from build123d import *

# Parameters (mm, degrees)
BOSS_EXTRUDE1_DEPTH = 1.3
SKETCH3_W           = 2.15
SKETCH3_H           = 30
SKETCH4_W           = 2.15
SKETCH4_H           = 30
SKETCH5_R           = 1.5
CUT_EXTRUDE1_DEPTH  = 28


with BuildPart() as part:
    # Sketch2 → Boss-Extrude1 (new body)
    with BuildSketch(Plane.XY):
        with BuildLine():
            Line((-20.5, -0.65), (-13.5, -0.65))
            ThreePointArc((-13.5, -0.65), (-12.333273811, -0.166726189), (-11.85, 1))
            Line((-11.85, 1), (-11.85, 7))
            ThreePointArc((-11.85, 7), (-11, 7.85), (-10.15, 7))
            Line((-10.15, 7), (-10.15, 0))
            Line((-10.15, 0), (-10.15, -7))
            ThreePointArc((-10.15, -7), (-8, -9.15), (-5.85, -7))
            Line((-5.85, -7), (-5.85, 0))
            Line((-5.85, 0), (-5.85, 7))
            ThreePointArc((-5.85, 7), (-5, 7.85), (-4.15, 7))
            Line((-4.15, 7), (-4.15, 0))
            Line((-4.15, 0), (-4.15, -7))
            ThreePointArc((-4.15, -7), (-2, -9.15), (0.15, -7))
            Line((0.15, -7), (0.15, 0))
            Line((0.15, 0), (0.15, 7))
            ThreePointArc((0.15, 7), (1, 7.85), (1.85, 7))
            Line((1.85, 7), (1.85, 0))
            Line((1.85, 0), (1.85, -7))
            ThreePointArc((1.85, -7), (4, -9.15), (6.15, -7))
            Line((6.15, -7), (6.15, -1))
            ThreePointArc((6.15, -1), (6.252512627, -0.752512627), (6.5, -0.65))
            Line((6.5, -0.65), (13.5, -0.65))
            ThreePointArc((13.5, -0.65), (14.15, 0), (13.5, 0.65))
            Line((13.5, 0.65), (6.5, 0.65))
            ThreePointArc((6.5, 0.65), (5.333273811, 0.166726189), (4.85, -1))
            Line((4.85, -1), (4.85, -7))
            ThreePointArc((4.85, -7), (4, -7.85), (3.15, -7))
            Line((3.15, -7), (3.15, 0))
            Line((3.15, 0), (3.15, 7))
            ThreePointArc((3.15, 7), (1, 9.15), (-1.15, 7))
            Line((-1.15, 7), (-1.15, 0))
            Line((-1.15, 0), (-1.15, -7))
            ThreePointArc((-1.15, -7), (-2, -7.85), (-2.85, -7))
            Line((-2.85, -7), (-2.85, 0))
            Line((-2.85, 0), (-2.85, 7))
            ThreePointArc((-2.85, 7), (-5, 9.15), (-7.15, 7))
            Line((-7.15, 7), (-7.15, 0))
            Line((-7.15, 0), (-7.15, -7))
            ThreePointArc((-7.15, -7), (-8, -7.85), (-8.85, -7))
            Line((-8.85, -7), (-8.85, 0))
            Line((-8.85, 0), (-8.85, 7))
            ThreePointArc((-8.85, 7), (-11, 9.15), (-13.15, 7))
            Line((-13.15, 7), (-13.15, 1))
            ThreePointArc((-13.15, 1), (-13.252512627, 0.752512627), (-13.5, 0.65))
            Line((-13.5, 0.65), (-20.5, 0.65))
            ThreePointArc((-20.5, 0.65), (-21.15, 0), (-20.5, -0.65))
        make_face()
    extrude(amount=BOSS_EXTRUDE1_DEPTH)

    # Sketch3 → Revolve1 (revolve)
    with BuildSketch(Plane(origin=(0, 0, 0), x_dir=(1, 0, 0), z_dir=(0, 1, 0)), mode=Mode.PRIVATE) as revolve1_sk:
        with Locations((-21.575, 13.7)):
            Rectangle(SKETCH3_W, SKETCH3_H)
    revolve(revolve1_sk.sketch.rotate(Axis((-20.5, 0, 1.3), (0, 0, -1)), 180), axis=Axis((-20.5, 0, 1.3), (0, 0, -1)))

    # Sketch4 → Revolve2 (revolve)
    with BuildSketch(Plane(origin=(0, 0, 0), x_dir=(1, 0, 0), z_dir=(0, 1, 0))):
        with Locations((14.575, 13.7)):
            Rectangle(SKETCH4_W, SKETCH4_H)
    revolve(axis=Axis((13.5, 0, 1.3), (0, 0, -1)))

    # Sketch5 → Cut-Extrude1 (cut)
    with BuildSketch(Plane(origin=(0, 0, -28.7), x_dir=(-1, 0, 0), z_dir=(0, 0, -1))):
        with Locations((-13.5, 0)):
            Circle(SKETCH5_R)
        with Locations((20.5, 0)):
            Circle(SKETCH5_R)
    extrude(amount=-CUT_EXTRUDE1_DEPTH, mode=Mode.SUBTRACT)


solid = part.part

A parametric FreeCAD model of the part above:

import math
import FreeCAD as App
import Part
import Sketcher

V = App.Vector
Q = App.Units.Quantity

doc = App.newDocument("Part")
body = doc.addObject("PartDesign::Body", "Body")

# Sketch on XY plane
sketch1 = body.newObject("Sketcher::SketchObject", "Sketch")
sketch1.AttachmentSupport = (doc.getObject("XY_Plane"), [""])
sketch1.MapMode = "FlatFace"
sketch1.addGeometry([
    Part.LineSegment(V(-20.5, -0.65, 0), V(-13.5, -0.65, 0)),  # 0
    Part.ArcOfCircle(Part.Circle(V(-13.5, 1, 0), V(0, 0, 1), 1.65), math.radians(-90), math.radians(0)),  # 1
    Part.LineSegment(V(-11.85, 1, 0), V(-11.85, 7, 0)),  # 2
    Part.ArcOfCircle(Part.Circle(V(-11, 7, 0), V(0, 0, 1), 0.85), math.radians(0), math.radians(180)),  # 3
    Part.LineSegment(V(-10.15, 7, 0), V(-10.15, -7, 0)),  # 4
    Part.ArcOfCircle(Part.Circle(V(-8, -7, 0), V(0, 0, 1), 2.15), math.radians(180), math.radians(360)),  # 5
    Part.LineSegment(V(-5.85, -7, 0), V(-5.85, 7, 0)),  # 6
    Part.ArcOfCircle(Part.Circle(V(-5, 7, 0), V(0, 0, 1), 0.85), math.radians(0), math.radians(180)),  # 7
    Part.LineSegment(V(-4.15, 7, 0), V(-4.15, -7, 0)),  # 8
    Part.ArcOfCircle(Part.Circle(V(-2, -7, 0), V(0, 0, 1), 2.15), math.radians(180), math.radians(360)),  # 9
    Part.LineSegment(V(0.15, -7, 0), V(0.15, 7, 0)),  # 10
    Part.ArcOfCircle(Part.Circle(V(1, 7, 0), V(0, 0, 1), 0.85), math.radians(0), math.radians(180)),  # 11
    Part.LineSegment(V(1.85, 7, 0), V(1.85, -7, 0)),  # 12
    Part.ArcOfCircle(Part.Circle(V(4, -7, 0), V(0, 0, 1), 2.15), math.radians(180), math.radians(360)),  # 13
    Part.LineSegment(V(6.15, -7, 0), V(6.15, -1, 0)),  # 14
    Part.ArcOfCircle(Part.Circle(V(6.5, -1, 0), V(0, 0, 1), 0.35), math.radians(90), math.radians(180)),  # 15
    Part.LineSegment(V(6.5, -0.65, 0), V(13.5, -0.65, 0)),  # 16
    Part.ArcOfCircle(Part.Circle(V(13.5, 0, 0), V(0, 0, 1), 0.65), math.radians(-90), math.radians(90)),  # 17
    Part.LineSegment(V(13.5, 0.65, 0), V(6.5, 0.65, 0)),  # 18
    Part.ArcOfCircle(Part.Circle(V(6.5, -1, 0), V(0, 0, 1), 1.65), math.radians(90), math.radians(180)),  # 19
    Part.LineSegment(V(4.85, -1, 0), V(4.85, -7, 0)),  # 20
    Part.ArcOfCircle(Part.Circle(V(4, -7, 0), V(0, 0, 1), 0.85), math.radians(180), math.radians(360)),  # 21
    Part.LineSegment(V(3.15, -7, 0), V(3.15, 7, 0)),  # 22
    Part.ArcOfCircle(Part.Circle(V(1, 7, 0), V(0, 0, 1), 2.15), math.radians(0), math.radians(180)),  # 23
    Part.LineSegment(V(-1.15, 7, 0), V(-1.15, -7, 0)),  # 24
    Part.ArcOfCircle(Part.Circle(V(-2, -7, 0), V(0, 0, 1), 0.85), math.radians(180), math.radians(360)),  # 25
    Part.LineSegment(V(-2.85, -7, 0), V(-2.85, 7, 0)),  # 26
    Part.ArcOfCircle(Part.Circle(V(-5, 7, 0), V(0, 0, 1), 2.15), math.radians(0), math.radians(180)),  # 27
    Part.LineSegment(V(-7.15, 7, 0), V(-7.15, -7, 0)),  # 28
    Part.ArcOfCircle(Part.Circle(V(-8, -7, 0), V(0, 0, 1), 0.85), math.radians(180), math.radians(360)),  # 29
    Part.LineSegment(V(-8.85, -7, 0), V(-8.85, 7, 0)),  # 30
    Part.ArcOfCircle(Part.Circle(V(-11, 7, 0), V(0, 0, 1), 2.15), math.radians(0), math.radians(180)),  # 31
    Part.LineSegment(V(-13.15, 7, 0), V(-13.15, 1, 0)),  # 32
    Part.ArcOfCircle(Part.Circle(V(-13.5, 1, 0), V(0, 0, 1), 0.35), math.radians(-90), math.radians(0)),  # 33
    Part.LineSegment(V(-13.5, 0.65, 0), V(-20.5, 0.65, 0)),  # 34
    Part.ArcOfCircle(Part.Circle(V(-20.5, 0, 0), V(0, 0, 1), 0.65), math.radians(90), math.radians(270)),  # 35
], False)
sketch1.addConstraint([
    Sketcher.Constraint("Tangent", 0, 2, 1, 1),
    Sketcher.Constraint("Tangent", 1, 2, 2, 1),
    Sketcher.Constraint("Tangent", 2, 2, 3, 2),
    Sketcher.Constraint("Tangent", 3, 1, 4, 1),
    Sketcher.Constraint("Tangent", 4, 2, 5, 1),
    Sketcher.Constraint("Tangent", 5, 2, 6, 1),
    Sketcher.Constraint("Tangent", 6, 2, 7, 2),
    Sketcher.Constraint("Tangent", 7, 1, 8, 1),
    Sketcher.Constraint("Tangent", 8, 2, 9, 1),
    Sketcher.Constraint("Tangent", 9, 2, 10, 1),
    Sketcher.Constraint("Tangent", 10, 2, 11, 2),
    Sketcher.Constraint("Tangent", 11, 1, 12, 1),
    Sketcher.Constraint("Tangent", 12, 2, 13, 1),
    Sketcher.Constraint("Tangent", 13, 2, 14, 1),
    Sketcher.Constraint("Tangent", 14, 2, 15, 2),
    Sketcher.Constraint("Tangent", 15, 1, 16, 1),
    Sketcher.Constraint("Tangent", 16, 2, 17, 1),
    Sketcher.Constraint("Tangent", 17, 2, 18, 1),
    Sketcher.Constraint("Tangent", 18, 2, 19, 1),
    Sketcher.Constraint("Tangent", 19, 2, 20, 1),
    Sketcher.Constraint("Tangent", 20, 2, 21, 2),
    Sketcher.Constraint("Tangent", 21, 1, 22, 1),
    Sketcher.Constraint("Tangent", 22, 2, 23, 1),
    Sketcher.Constraint("Tangent", 23, 2, 24, 1),
    Sketcher.Constraint("Tangent", 24, 2, 25, 2),
    Sketcher.Constraint("Tangent", 25, 1, 26, 1),
    Sketcher.Constraint("Tangent", 26, 2, 27, 1),
    Sketcher.Constraint("Tangent", 27, 2, 28, 1),
    Sketcher.Constraint("Tangent", 28, 2, 29, 2),
    Sketcher.Constraint("Tangent", 29, 1, 30, 1),
    Sketcher.Constraint("Tangent", 30, 2, 31, 1),
    Sketcher.Constraint("Tangent", 31, 2, 32, 1),
    Sketcher.Constraint("Tangent", 32, 2, 33, 2),
    Sketcher.Constraint("Tangent", 33, 1, 34, 1),
    Sketcher.Constraint("Tangent", 34, 2, 35, 1),
    Sketcher.Constraint("Tangent", 35, 2, 0, 1),
    Sketcher.Constraint("Horizontal", 0),
    Sketcher.Constraint("Vertical", 2),
    Sketcher.Constraint("Vertical", 4),
    Sketcher.Constraint("Vertical", 6),
    Sketcher.Constraint("Vertical", 8),
    Sketcher.Constraint("Vertical", 10),
    Sketcher.Constraint("Vertical", 12),
    Sketcher.Constraint("Vertical", 14),
    Sketcher.Constraint("Horizontal", 16),
    Sketcher.Constraint("Horizontal", 18),
    Sketcher.Constraint("Vertical", 20),
    Sketcher.Constraint("Vertical", 22),
    Sketcher.Constraint("Vertical", 24),
    Sketcher.Constraint("Vertical", 26),
    Sketcher.Constraint("Vertical", 28),
    Sketcher.Constraint("Vertical", 30),
    Sketcher.Constraint("Vertical", 32),
    Sketcher.Constraint("Horizontal", 34),
    Sketcher.Constraint("Coincident", 19, 3, 15, 3),
    Sketcher.Constraint("Coincident", 21, 3, 13, 3),
    Sketcher.Constraint("Coincident", 23, 3, 11, 3),
    Sketcher.Constraint("Coincident", 25, 3, 9, 3),
    Sketcher.Constraint("Coincident", 27, 3, 7, 3),
    Sketcher.Constraint("Coincident", 29, 3, 5, 3),
    Sketcher.Constraint("Coincident", 31, 3, 3, 3),
    Sketcher.Constraint("Coincident", 33, 3, 1, 3),
    Sketcher.Constraint("Equal", 3, 7),
    Sketcher.Constraint("Equal", 5, 9),
    Sketcher.Constraint("Equal", 7, 11),
    Sketcher.Constraint("Equal", 9, 13),
    Sketcher.Constraint("Equal", 1, 19),
    Sketcher.Constraint("Equal", 11, 21),
    Sketcher.Constraint("Symmetric", 0, 2, 17, 2, -1, 1),
    Sketcher.Constraint("PointOnObject", 17, 3, -1),
    Sketcher.Constraint("Horizontal", 3, 3, 7, 3),
    Sketcher.Constraint("Horizontal", 5, 3, 9, 3),
    Sketcher.Constraint("Horizontal", 7, 3, 11, 3),
    Sketcher.Constraint("Horizontal", 9, 3, 13, 3),
    Sketcher.Constraint("Equal", 0, 16),
    Sketcher.Constraint("Equal", 2, 14),
    Sketcher.Constraint("DistanceX", 0, 1, 0, 2, Q("7 mm")),
    Sketcher.Constraint("DistanceY", 2, 1, 2, 2, Q("6 mm")),
    Sketcher.Constraint("DistanceY", 4, 2, 4, 1, Q("14 mm")),
    Sketcher.Constraint("Radius", 1, Q("1.65 mm")),
    Sketcher.Constraint("Radius", 3, Q("0.85 mm")),
])
pad1 = body.newObject("PartDesign::Pad", "Pad")
pad1.Profile = sketch1
pad1.Length = 1.3

# Sketch on XZ plane
sketch2 = body.newObject("Sketcher::SketchObject", "Sketch001")
sketch2.AttachmentSupport = (doc.getObject("XZ_Plane"), [""])
sketch2.MapMode = "FlatFace"
sketch2.addGeometry([
    Part.LineSegment(V(-22.65, -28.7, 0), V(-22.65, 1.3, 0)),
    Part.LineSegment(V(-22.65, 1.3, 0), V(-20.5, 1.3, 0)),
    Part.LineSegment(V(-20.5, 1.3, 0), V(-20.5, -28.7, 0)),
    Part.LineSegment(V(-20.5, -28.7, 0), V(-22.65, -28.7, 0)),
], False)
sketch2.addGeometry(Part.LineSegment(V(-20.5, 1.3, 0), V(-20.5, -28.7, 0)), True)  # axis
sketch2.addConstraint([
    Sketcher.Constraint("Coincident", 0, 2, 1, 1),
    Sketcher.Constraint("Coincident", 1, 2, 2, 1),
    Sketcher.Constraint("Coincident", 2, 2, 3, 1),
    Sketcher.Constraint("Coincident", 3, 2, 0, 1),
    Sketcher.Constraint("Vertical", 0),
    Sketcher.Constraint("Horizontal", 1),
    Sketcher.Constraint("Vertical", 2),
    Sketcher.Constraint("Horizontal", 3),
    Sketcher.Constraint("Vertical", 4),
    Sketcher.Constraint("Coincident", 4, 1, 1, 2),
    Sketcher.Constraint("Horizontal", 3, 2, 4, 2),
    Sketcher.Constraint("DistanceY", 0, 1, 0, 2, Q("30 mm")),
    Sketcher.Constraint("DistanceX", 1, 1, 1, 2, Q("2.15 mm")),
    Sketcher.Constraint("DistanceY", -1, 1, 0, 2, Q("1.3 mm")),
    Sketcher.Constraint("DistanceX", 1, 2, -1, 1, Q("20.5 mm")),
])
revolution = body.newObject("PartDesign::Revolution", "Revolution")
revolution.Profile = sketch2
revolution.ReferenceAxis = (sketch2, ["Axis0"])
revolution.Angle = 360

# Sketch on XZ plane
sketch3 = body.newObject("Sketcher::SketchObject", "Sketch002")
sketch3.AttachmentSupport = (doc.getObject("XZ_Plane"), [""])
sketch3.MapMode = "FlatFace"
sketch3.addGeometry([
    Part.LineSegment(V(13.5, -28.7, 0), V(13.5, 1.3, 0)),
    Part.LineSegment(V(13.5, 1.3, 0), V(15.65, 1.3, 0)),
    Part.LineSegment(V(15.65, 1.3, 0), V(15.65, -28.7, 0)),
    Part.LineSegment(V(15.65, -28.7, 0), V(13.5, -28.7, 0)),
], False)
sketch3.addGeometry(Part.LineSegment(V(13.5, 1.3, 0), V(13.5, -28.7, 0)), True)  # axis
sketch3.addConstraint([
    Sketcher.Constraint("Coincident", 0, 2, 1, 1),
    Sketcher.Constraint("Coincident", 1, 2, 2, 1),
    Sketcher.Constraint("Coincident", 2, 2, 3, 1),
    Sketcher.Constraint("Coincident", 3, 2, 0, 1),
    Sketcher.Constraint("Vertical", 0),
    Sketcher.Constraint("Horizontal", 1),
    Sketcher.Constraint("Vertical", 2),
    Sketcher.Constraint("Horizontal", 3),
    Sketcher.Constraint("Vertical", 4),
    Sketcher.Constraint("Coincident", 4, 1, 0, 2),
    Sketcher.Constraint("Horizontal", 2, 2, 4, 2),
    Sketcher.Constraint("DistanceY", 0, 1, 0, 2, Q("30 mm")),
    Sketcher.Constraint("DistanceX", 1, 1, 1, 2, Q("2.15 mm")),
    Sketcher.Constraint("DistanceX", -1, 1, 0, 2, Q("13.5 mm")),
    Sketcher.Constraint("DistanceY", -1, 1, 0, 2, Q("1.3 mm")),
])
revolution2 = body.newObject("PartDesign::Revolution", "Revolution001")
revolution2.Profile = sketch3
revolution2.ReferenceAxis = (sketch3, ["Axis0"])
revolution2.Angle = 360

# Sketch on XY plane
sketch4 = body.newObject("Sketcher::SketchObject", "Sketch003")
sketch4.AttachmentSupport = (doc.getObject("XY_Plane"), [""])
sketch4.MapMode = "FlatFace"
sketch4.AttachmentOffset = App.Placement(V(0, 0, -28.7), App.Rotation())
sketch4.addGeometry([
    Part.Circle(V(13.5, 0, 0), V(0, 0, 1), 1.5),
    Part.Circle(V(-20.5, 0, 0), V(0, 0, 1), 1.5),
], False)
sketch4.addConstraint([
    Sketcher.Constraint("Equal", 0, 1),
    Sketcher.Constraint("PointOnObject", 0, 3, -1),
    Sketcher.Constraint("PointOnObject", 1, 3, -1),
    Sketcher.Constraint("Diameter", 0, Q("3 mm")),
    Sketcher.Constraint("DistanceX", 1, 3, 0, 3, Q("34 mm")),
    Sketcher.Constraint("DistanceX", -1, 1, 0, 3, Q("13.5 mm")),
])
pocket1 = body.newObject("PartDesign::Pocket", "Pocket")
pocket1.Profile = sketch4
pocket1.Length = 28
pocket1.Reversed = True

doc.recompute()
